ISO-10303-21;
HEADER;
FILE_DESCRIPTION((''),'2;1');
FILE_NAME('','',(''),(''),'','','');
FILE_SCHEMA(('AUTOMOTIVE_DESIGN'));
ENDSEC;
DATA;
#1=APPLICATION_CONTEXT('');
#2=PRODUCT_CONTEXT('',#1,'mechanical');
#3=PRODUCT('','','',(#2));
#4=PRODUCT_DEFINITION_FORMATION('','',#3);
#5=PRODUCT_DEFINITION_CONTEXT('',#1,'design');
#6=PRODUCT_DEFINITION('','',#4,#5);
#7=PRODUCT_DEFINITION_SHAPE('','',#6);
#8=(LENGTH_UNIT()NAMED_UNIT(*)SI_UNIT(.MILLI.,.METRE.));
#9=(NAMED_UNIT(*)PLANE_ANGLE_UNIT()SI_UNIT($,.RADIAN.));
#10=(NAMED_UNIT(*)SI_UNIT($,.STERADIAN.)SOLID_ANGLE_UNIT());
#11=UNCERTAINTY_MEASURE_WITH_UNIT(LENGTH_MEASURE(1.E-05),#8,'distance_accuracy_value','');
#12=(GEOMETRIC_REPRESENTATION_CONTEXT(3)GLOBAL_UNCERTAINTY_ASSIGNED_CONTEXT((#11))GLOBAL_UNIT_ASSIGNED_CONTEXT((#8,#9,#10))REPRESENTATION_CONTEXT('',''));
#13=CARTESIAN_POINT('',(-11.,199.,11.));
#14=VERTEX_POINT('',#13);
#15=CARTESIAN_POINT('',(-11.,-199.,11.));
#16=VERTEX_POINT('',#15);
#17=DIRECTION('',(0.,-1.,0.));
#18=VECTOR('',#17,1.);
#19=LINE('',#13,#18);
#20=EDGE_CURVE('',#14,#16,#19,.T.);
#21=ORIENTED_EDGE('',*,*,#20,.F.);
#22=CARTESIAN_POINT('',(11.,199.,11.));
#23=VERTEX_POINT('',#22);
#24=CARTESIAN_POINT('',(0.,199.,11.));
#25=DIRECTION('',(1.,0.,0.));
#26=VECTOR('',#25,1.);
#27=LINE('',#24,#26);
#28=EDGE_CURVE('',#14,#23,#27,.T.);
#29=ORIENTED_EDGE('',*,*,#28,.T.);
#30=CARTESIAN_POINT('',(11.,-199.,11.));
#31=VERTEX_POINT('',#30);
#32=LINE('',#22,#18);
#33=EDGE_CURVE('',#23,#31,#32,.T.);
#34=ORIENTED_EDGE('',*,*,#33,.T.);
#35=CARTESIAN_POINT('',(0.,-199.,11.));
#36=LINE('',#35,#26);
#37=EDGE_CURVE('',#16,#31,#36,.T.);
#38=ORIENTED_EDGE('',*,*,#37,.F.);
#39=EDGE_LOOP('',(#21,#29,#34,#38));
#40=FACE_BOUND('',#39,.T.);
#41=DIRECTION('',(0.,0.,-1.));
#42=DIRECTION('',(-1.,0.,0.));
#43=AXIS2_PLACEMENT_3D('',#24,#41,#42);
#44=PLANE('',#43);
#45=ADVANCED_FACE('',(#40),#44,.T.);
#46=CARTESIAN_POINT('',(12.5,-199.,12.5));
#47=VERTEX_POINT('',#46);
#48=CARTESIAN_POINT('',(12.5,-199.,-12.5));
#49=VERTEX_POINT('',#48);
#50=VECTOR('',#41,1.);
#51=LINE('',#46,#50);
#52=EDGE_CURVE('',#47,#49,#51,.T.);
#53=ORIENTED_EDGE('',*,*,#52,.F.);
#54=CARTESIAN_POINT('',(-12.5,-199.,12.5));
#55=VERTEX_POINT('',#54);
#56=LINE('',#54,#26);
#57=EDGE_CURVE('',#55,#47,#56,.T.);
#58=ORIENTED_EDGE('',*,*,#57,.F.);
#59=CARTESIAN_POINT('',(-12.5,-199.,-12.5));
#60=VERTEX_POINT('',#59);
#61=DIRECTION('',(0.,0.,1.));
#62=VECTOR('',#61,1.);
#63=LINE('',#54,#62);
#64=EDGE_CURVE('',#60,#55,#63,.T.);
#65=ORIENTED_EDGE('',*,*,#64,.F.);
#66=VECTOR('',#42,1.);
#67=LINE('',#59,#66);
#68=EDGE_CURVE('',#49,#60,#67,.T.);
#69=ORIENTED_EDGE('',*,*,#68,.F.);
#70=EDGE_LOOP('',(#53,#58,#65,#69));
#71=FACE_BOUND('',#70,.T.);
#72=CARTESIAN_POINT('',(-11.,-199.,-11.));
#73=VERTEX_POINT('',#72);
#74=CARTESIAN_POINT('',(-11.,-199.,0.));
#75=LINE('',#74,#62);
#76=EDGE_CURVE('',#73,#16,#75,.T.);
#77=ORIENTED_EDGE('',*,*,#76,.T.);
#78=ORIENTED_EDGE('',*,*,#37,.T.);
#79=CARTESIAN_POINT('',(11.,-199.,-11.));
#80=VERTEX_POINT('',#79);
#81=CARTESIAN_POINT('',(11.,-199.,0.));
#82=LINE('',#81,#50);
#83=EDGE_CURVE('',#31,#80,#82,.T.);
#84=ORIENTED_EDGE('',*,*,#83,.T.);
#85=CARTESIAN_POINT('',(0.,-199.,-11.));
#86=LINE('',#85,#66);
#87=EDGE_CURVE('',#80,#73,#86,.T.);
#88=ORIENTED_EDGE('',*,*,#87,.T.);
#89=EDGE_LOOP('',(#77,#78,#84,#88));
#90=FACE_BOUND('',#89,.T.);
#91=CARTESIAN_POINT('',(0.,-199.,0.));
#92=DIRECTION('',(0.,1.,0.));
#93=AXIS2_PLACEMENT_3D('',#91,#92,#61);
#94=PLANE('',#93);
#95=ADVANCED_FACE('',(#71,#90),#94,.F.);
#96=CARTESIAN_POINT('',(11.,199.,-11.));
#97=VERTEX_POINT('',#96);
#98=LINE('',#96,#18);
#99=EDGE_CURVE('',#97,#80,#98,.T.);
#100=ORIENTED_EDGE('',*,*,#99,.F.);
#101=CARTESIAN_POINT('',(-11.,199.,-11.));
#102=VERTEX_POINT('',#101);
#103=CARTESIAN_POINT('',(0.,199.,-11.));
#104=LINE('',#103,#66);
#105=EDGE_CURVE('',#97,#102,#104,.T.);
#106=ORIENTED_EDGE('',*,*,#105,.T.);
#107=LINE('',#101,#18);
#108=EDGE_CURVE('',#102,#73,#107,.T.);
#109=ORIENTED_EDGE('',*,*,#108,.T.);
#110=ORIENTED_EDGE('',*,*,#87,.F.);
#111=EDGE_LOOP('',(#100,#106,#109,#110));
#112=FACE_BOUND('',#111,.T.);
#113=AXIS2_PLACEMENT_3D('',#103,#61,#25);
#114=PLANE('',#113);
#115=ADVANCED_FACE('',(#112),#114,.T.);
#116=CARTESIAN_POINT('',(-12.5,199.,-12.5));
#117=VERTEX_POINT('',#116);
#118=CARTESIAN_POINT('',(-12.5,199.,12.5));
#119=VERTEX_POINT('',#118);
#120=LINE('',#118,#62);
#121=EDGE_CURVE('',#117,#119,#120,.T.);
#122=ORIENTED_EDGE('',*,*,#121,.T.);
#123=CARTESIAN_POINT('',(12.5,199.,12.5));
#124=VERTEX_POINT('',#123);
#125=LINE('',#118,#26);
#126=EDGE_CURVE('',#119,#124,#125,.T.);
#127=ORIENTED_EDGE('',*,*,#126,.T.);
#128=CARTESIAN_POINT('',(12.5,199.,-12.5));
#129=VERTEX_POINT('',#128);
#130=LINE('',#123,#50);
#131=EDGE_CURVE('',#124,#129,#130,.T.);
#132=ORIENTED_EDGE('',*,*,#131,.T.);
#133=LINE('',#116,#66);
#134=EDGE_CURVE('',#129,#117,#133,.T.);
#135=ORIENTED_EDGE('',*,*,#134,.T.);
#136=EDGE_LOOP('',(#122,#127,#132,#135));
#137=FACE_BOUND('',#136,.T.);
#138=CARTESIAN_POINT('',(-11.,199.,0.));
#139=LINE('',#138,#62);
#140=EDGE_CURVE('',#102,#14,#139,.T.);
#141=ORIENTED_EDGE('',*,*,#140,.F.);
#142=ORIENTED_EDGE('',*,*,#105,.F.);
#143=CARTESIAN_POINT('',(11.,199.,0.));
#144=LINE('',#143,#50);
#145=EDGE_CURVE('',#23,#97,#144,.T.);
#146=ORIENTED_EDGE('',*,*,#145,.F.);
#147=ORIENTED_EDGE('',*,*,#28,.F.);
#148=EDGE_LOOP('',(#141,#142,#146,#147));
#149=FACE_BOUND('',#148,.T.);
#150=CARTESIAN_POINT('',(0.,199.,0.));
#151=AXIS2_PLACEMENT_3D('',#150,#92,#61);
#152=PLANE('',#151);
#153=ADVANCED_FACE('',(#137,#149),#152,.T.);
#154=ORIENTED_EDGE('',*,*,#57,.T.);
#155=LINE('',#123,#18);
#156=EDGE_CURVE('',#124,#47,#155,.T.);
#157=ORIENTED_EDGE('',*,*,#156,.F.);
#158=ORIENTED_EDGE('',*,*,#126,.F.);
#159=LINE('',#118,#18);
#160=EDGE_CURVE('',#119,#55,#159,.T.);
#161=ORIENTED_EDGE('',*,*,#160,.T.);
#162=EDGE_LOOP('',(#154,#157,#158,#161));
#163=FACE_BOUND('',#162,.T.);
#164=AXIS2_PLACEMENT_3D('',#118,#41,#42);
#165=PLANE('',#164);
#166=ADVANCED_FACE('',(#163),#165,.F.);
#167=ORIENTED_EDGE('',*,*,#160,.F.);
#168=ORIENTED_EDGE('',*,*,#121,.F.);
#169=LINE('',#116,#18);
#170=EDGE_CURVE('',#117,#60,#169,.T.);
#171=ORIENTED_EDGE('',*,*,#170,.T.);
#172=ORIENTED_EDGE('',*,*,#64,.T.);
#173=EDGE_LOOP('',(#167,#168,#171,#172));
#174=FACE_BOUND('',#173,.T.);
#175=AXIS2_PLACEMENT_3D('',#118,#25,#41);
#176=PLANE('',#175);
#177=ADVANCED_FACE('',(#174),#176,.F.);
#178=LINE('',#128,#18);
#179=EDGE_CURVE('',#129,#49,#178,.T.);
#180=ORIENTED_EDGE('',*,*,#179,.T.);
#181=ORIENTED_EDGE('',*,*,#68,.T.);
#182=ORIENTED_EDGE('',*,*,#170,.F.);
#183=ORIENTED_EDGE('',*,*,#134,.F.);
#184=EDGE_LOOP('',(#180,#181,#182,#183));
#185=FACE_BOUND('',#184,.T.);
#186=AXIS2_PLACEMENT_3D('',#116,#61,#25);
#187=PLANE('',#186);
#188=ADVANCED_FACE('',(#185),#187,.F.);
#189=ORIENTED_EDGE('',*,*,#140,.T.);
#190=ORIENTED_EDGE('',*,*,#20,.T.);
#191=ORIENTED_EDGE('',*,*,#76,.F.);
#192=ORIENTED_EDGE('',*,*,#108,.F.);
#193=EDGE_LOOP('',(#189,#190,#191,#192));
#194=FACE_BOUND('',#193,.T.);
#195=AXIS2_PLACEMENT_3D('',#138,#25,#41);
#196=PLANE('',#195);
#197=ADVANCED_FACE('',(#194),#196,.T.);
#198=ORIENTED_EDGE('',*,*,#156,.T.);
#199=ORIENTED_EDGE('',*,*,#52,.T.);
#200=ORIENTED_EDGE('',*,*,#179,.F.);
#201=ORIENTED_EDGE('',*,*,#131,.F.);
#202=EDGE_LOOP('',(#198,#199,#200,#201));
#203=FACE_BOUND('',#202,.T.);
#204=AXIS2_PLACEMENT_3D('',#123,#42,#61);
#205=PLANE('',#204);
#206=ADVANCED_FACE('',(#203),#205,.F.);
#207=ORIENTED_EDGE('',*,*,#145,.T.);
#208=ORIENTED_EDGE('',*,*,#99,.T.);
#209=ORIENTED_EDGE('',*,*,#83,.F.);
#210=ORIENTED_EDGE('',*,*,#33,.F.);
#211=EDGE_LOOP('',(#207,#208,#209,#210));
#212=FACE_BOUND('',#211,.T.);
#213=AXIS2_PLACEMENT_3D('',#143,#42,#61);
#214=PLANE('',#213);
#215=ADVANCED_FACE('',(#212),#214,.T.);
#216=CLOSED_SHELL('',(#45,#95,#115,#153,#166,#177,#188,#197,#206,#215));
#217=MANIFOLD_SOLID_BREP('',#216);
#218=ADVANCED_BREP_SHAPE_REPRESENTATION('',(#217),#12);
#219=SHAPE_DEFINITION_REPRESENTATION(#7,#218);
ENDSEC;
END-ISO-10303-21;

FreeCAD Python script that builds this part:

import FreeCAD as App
import Part
import Sketcher

V = App.Vector

doc = App.newDocument("Part")
body = doc.addObject("PartDesign::Body", "Body")

# Sketch on XZ plane
sketch1 = body.newObject("Sketcher::SketchObject", "Sketch")
sketch1.AttachmentSupport = (doc.getObject("XZ_Plane"), [""])
sketch1.MapMode = "FlatFace"
sketch1.addGeometry(Part.LineSegment(V(-12, -12, 0), V(-12, 12, 0)), False)
sketch1.addGeometry(Part.LineSegment(V(-12, 12, 0), V(12, 12, 0)), False)
sketch1.addGeometry(Part.LineSegment(V(12, 12, 0), V(12, -12, 0)), False)
sketch1.addGeometry(Part.LineSegment(V(12, -12, 0), V(-12, -12, 0)), False)
sketch1.addGeometry(Part.LineSegment(V(11, 11, 0), V(-11, 11, 0)), False)
sketch1.addGeometry(Part.LineSegment(V(-11, 11, 0), V(-11, -11, 0)), False)
sketch1.addGeometry(Part.LineSegment(V(-11, -11, 0), V(11, -11, 0)), False)
sketch1.addGeometry(Part.LineSegment(V(11, -11, 0), V(11, 11, 0)), False)
sketch1.addConstraint(Sketcher.Constraint("Coincident", 0, 2, 1, 1))
sketch1.addConstraint(Sketcher.Constraint("Coincident", 1, 2, 2, 1))
sketch1.addConstraint(Sketcher.Constraint("Coincident", 2, 2, 3, 1))
sketch1.addConstraint(Sketcher.Constraint("Coincident", 3, 2, 0, 1))
sketch1.addConstraint(Sketcher.Constraint("Coincident", 4, 2, 5, 1))
sketch1.addConstraint(Sketcher.Constraint("Coincident", 5, 2, 6, 1))
sketch1.addConstraint(Sketcher.Constraint("Coincident", 6, 2, 7, 1))
sketch1.addConstraint(Sketcher.Constraint("Coincident", 7, 2, 4, 1))
sketch1.addConstraint(Sketcher.Constraint("Vertical", 0))
sketch1.addConstraint(Sketcher.Constraint("Horizontal", 1))
sketch1.addConstraint(Sketcher.Constraint("Vertical", 2))
sketch1.addConstraint(Sketcher.Constraint("Horizontal", 3))
sketch1.addConstraint(Sketcher.Constraint("Horizontal", 4))
sketch1.addConstraint(Sketcher.Constraint("Vertical", 5))
sketch1.addConstraint(Sketcher.Constraint("Horizontal", 6))
sketch1.addConstraint(Sketcher.Constraint("Vertical", 7))
sketch1.addConstraint(Sketcher.Constraint("Symmetric", 0, 2, 2, 2, -1, 1))
sketch1.addConstraint(Sketcher.Constraint("Symmetric", 4, 2, 6, 2, -1, 1))
sketch1.addConstraint(Sketcher.Constraint("Equal", 3, 0))
sketch1.addConstraint(Sketcher.Constraint("Equal", 6, 5))
sketch1.addConstraint(Sketcher.Constraint("DistanceX", 1, 1, 1, 2, 25.0))
sketch1.addConstraint(Sketcher.Constraint("DistanceX", 4, 2, 4, 1, 22.0))
pad1 = body.newObject("PartDesign::Pad", "Pad")
pad1.Profile = sketch1
pad1.Length = 398
pad1.Midplane = True

doc.recompute()
